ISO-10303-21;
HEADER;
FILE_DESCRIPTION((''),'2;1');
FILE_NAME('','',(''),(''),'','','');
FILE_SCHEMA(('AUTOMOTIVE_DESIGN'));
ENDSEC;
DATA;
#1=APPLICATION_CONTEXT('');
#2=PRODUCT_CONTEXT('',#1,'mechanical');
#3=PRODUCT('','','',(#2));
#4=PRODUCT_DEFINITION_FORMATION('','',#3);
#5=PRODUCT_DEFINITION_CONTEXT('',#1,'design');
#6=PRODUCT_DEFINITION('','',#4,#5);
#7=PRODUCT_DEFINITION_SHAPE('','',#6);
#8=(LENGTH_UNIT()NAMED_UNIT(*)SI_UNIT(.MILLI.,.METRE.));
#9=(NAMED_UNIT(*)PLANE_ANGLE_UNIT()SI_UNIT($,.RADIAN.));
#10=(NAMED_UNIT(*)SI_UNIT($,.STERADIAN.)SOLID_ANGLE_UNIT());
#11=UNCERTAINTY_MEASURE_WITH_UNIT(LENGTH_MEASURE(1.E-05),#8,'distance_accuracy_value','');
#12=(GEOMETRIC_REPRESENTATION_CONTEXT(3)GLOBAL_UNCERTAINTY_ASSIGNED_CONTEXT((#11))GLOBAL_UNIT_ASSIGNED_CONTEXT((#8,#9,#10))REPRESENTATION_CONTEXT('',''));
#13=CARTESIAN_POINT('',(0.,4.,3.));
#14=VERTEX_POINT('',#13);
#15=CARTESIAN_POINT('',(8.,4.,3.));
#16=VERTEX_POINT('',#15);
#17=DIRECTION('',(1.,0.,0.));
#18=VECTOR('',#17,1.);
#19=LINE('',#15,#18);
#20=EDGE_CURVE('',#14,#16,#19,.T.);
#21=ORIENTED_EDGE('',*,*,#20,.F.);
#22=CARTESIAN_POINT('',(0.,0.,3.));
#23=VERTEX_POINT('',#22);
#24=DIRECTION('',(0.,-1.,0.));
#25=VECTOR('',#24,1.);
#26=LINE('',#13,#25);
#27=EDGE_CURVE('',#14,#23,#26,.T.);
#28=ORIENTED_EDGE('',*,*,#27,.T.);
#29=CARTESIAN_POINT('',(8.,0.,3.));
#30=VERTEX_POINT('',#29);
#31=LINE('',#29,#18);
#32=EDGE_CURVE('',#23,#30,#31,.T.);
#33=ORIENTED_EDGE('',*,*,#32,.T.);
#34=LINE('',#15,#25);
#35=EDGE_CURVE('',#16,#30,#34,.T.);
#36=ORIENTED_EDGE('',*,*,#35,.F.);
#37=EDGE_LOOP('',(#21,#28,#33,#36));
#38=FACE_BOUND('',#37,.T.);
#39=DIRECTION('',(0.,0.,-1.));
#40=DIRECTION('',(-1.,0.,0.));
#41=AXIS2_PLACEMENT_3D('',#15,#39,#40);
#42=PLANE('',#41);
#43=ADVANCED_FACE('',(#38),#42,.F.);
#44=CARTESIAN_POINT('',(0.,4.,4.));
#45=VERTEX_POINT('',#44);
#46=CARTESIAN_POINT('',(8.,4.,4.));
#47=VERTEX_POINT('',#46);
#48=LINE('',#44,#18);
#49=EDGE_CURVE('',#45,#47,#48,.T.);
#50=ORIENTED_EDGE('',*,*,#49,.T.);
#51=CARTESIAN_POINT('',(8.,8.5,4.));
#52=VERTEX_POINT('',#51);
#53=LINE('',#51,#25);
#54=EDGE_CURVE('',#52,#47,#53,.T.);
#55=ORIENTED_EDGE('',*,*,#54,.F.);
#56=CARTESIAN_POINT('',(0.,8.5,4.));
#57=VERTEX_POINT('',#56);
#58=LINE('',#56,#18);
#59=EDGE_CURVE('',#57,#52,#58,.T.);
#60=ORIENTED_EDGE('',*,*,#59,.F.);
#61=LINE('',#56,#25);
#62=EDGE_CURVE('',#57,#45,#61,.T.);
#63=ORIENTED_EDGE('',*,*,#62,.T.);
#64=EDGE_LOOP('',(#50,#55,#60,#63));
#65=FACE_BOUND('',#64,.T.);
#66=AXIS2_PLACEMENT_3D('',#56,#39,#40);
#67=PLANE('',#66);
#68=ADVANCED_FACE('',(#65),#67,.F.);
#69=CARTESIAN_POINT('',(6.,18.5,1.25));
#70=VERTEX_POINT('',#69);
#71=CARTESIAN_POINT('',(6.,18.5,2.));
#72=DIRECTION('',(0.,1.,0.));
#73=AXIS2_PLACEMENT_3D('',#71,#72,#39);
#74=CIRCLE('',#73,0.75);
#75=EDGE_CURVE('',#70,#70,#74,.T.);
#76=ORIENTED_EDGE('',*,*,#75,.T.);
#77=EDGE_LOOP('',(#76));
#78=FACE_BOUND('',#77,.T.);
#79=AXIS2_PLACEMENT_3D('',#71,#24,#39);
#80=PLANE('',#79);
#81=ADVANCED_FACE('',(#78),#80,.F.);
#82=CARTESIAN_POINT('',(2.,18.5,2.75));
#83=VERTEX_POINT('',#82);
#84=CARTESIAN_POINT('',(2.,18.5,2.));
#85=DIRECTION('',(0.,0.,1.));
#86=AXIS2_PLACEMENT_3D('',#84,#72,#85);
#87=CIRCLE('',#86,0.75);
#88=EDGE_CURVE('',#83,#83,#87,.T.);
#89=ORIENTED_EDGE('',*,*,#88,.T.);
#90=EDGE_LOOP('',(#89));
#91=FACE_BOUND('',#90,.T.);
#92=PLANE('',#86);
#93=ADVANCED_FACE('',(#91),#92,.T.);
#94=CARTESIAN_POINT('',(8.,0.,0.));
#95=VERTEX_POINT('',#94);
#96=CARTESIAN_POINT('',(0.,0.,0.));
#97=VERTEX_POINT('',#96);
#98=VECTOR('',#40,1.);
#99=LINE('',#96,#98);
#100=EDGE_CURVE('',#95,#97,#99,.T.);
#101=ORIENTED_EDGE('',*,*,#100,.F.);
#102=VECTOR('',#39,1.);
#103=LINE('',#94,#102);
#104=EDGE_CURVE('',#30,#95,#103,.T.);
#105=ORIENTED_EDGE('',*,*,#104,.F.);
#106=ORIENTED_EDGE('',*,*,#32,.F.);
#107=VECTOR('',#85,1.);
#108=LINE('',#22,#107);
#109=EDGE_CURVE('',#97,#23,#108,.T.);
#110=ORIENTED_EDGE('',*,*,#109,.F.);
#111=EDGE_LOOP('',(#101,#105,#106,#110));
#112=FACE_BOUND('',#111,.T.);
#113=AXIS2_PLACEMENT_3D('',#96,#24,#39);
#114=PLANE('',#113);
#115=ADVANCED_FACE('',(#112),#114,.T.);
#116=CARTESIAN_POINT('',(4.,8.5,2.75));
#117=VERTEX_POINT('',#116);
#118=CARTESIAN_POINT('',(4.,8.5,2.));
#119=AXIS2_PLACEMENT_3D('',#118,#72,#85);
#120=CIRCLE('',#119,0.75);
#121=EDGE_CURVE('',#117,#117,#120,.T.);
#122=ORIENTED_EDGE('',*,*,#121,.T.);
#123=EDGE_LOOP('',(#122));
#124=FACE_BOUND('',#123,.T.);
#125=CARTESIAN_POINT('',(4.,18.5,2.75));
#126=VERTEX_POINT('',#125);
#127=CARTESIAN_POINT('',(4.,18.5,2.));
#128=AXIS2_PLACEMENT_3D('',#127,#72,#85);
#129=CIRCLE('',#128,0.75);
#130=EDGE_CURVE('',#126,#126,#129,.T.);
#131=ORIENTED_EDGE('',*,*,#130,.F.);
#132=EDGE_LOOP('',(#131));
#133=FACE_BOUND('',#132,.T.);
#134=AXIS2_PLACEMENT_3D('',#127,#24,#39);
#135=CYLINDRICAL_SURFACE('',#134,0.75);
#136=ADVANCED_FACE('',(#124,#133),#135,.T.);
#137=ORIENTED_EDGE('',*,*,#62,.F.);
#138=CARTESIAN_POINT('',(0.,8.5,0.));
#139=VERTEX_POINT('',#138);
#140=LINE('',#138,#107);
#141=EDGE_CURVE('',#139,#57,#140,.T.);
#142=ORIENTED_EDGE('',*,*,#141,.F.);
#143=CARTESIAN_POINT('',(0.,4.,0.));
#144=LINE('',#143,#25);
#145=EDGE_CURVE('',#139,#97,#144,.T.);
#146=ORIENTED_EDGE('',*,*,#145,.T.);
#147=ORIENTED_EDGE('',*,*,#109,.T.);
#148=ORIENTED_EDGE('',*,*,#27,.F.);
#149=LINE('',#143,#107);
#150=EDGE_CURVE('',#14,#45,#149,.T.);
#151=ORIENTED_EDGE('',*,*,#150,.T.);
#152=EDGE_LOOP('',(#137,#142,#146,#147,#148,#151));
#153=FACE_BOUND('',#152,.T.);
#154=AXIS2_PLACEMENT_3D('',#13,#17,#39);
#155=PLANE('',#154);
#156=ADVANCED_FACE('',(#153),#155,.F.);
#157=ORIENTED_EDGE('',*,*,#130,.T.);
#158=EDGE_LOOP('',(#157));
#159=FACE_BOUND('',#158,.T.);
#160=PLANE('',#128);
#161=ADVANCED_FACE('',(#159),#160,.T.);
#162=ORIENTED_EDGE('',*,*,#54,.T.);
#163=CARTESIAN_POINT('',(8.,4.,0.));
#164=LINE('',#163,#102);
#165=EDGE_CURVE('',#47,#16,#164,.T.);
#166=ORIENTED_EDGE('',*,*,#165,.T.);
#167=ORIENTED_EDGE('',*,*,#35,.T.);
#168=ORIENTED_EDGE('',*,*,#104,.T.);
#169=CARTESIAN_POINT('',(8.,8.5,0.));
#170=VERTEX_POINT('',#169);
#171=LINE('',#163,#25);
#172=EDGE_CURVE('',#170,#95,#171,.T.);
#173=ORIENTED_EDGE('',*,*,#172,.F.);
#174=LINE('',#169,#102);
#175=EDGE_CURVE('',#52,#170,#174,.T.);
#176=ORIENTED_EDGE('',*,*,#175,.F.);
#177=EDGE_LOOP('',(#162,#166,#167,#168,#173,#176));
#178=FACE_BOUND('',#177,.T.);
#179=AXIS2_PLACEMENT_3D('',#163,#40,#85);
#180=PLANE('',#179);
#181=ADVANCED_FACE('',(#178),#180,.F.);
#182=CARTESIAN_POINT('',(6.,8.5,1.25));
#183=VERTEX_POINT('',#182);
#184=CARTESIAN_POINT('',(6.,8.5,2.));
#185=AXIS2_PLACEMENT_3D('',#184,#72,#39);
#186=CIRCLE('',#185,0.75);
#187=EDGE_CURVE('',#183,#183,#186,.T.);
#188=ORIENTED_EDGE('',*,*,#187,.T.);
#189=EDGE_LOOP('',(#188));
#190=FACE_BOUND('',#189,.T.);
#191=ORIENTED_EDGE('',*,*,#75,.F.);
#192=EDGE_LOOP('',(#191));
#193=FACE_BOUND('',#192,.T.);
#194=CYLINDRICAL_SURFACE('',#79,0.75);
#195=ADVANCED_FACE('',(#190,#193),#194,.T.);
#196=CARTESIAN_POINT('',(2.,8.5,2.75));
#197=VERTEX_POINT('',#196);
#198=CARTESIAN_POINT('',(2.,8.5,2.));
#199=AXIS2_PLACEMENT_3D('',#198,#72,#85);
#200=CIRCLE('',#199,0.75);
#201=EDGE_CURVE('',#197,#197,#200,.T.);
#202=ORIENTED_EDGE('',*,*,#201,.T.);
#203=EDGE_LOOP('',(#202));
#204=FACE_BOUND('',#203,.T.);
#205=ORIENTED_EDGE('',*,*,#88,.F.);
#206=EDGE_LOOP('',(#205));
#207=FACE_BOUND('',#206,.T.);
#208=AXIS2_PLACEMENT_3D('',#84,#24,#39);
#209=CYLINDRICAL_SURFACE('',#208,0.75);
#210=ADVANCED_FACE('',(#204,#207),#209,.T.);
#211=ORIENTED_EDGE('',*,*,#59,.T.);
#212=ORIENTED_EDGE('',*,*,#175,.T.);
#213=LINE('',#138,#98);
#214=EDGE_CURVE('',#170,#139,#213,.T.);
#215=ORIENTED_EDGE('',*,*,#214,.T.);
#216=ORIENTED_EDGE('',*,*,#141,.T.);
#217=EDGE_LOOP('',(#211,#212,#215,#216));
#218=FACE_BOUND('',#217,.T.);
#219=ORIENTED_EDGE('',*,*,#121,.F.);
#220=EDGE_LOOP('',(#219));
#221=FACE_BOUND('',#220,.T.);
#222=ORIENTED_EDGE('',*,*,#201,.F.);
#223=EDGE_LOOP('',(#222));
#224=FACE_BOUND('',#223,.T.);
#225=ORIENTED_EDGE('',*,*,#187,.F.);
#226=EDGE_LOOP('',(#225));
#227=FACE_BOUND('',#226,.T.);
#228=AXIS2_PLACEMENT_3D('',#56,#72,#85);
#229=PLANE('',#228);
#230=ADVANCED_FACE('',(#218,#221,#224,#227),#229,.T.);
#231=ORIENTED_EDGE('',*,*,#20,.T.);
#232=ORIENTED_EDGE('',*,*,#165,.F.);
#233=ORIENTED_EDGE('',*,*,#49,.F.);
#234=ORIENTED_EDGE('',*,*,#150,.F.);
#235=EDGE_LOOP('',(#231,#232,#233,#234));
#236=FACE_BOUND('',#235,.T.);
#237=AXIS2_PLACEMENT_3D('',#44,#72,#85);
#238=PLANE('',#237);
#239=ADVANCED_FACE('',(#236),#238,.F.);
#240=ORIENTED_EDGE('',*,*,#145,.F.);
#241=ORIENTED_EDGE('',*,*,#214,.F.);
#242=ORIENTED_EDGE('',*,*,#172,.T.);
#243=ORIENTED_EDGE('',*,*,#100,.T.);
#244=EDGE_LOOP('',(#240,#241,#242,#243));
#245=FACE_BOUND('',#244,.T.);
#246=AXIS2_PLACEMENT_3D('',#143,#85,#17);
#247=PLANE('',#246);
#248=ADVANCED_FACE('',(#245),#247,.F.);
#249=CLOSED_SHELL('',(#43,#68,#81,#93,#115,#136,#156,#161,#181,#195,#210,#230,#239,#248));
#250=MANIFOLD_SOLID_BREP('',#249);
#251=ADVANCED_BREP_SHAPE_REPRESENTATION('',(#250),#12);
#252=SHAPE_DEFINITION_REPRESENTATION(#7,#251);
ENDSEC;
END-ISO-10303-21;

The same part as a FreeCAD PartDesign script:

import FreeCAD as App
import Part
import Sketcher

V = App.Vector

doc = App.newDocument("Part")
body = doc.addObject("PartDesign::Body", "Body")

sketch1 = body.newObject("Sketcher::SketchObject", "Sketch")
sketch1.AttachmentSupport = (doc.getObject("XZ_Plane"), [""])
sketch1.MapMode = "FlatFace"
sketch1.addGeometry(Part.LineSegment(V(0, 0, 0), V(0, 3, 0)), False)
sketch1.addGeometry(Part.LineSegment(V(0, 3, 0), V(8, 3, 0)), False)
sketch1.addGeometry(Part.LineSegment(V(8, 3, 0), V(8, 0, 0)), False)
sketch1.addGeometry(Part.LineSegment(V(8, 0, 0), V(0, 0, 0)), False)
sketch1.addConstraint(Sketcher.Constraint("Coincident", 0, 2, 1, 1))
sketch1.addConstraint(Sketcher.Constraint("Coincident", 1, 2, 2, 1))
sketch1.addConstraint(Sketcher.Constraint("Coincident", 2, 2, 3, 1))
sketch1.addConstraint(Sketcher.Constraint("Coincident", 3, 2, 0, 1))
sketch1.addConstraint(Sketcher.Constraint("Vertical", 0))
sketch1.addConstraint(Sketcher.Constraint("Horizontal", 1))
sketch1.addConstraint(Sketcher.Constraint("Vertical", 2))
sketch1.addConstraint(Sketcher.Constraint("Horizontal", 3))
sketch1.addConstraint(Sketcher.Constraint("Coincident", 3, 2, -1, 1))
sketch1.addConstraint(Sketcher.Constraint("DistanceX", 1, 1, 1, 2, 8.0))
sketch1.addConstraint(Sketcher.Constraint("DistanceY", 0, 1, 0, 2, 3.0))
pad1 = body.newObject("PartDesign::Pad", "Pad")
pad1.Profile = sketch1
pad1.Length = 4
pad1.Reversed = True

sketch2 = body.newObject("Sketcher::SketchObject", "Sketch001")
sketch2.AttachmentSupport = (doc.getObject("XZ_Plane"), [""])
sketch2.MapMode = "FlatFace"
sketch2.AttachmentOffset = App.Placement(V(0, 0, -4), App.Rotation())
sketch2.addGeometry(Part.LineSegment(V(0, 0, 0), V(0, 4, 0)), False)
sketch2.addGeometry(Part.LineSegment(V(0, 4, 0), V(8, 4, 0)), False)
sketch2.addGeometry(Part.LineSegment(V(8, 4, 0), V(8, 0, 0)), False)
sketch2.addGeometry(Part.LineSegment(V(8, 0, 0), V(0, 0, 0)), False)
sketch2.addConstraint(Sketcher.Constraint("Coincident", 0, 2, 1, 1))
sketch2.addConstraint(Sketcher.Constraint("Coincident", 1, 2, 2, 1))
sketch2.addConstraint(Sketcher.Constraint("Coincident", 2, 2, 3, 1))
sketch2.addConstraint(Sketcher.Constraint("Coincident", 3, 2, 0, 1))
sketch2.addConstraint(Sketcher.Constraint("Vertical", 0))
sketch2.addConstraint(Sketcher.Constraint("Horizontal", 1))
sketch2.addConstraint(Sketcher.Constraint("Vertical", 2))
sketch2.addConstraint(Sketcher.Constraint("Horizontal", 3))
sketch2.addConstraint(Sketcher.Constraint("Coincident", 3, 2, -1, 1))
sketch2.addConstraint(Sketcher.Constraint("DistanceX", 1, 1, 1, 2, 8.0))
sketch2.addConstraint(Sketcher.Constraint("DistanceY", 0, 1, 0, 2, 4.0))
pad2 = body.newObject("PartDesign::Pad", "Pad001")
pad2.Profile = sketch2
pad2.Length = 4.5
pad2.Reversed = True

sketch3 = body.newObject("Sketcher::SketchObject", "Sketch002")
sketch3.AttachmentSupport = (doc.getObject("XZ_Plane"), [""])
sketch3.MapMode = "FlatFace"
sketch3.AttachmentOffset = App.Placement(V(0, 0, -8.5), App.Rotation())
sketch3.addGeometry(Part.Circle(V(4, 2, 0), V(0, 0, 1), 0.75), False)
sketch3.addGeometry(Part.Circle(V(2, 2, 0), V(0, 0, 1), 0.75), False)
sketch3.addGeometry(Part.Circle(V(6, 2, 0), V(0, 0, 1), 0.75), False)
sketch3.addConstraint(Sketcher.Constraint("Equal", 0, 1))
sketch3.addConstraint(Sketcher.Constraint("Equal", 1, 2))
sketch3.addConstraint(Sketcher.Constraint("Horizontal", 0, 3, 1, 3))
sketch3.addConstraint(Sketcher.Constraint("Horizontal", 1, 3, 2, 3))
sketch3.addConstraint(Sketcher.Constraint("Diameter", 0, 1.5))
sketch3.addConstraint(Sketcher.Constraint("DistanceX", -1, 1, 0, 3, 4.0))
sketch3.addConstraint(Sketcher.Constraint("DistanceY", -1, 1, 0, 3, 2.0))
sketch3.addConstraint(Sketcher.Constraint("DistanceX", -1, 1, 1, 3, 2.0))
sketch3.addConstraint(Sketcher.Constraint("DistanceX", -1, 1, 2, 3, 6.0))
pad3 = body.newObject("PartDesign::Pad", "Pad002")
pad3.Profile = sketch3
pad3.Length = 10
pad3.Reversed = True

doc.recompute()
